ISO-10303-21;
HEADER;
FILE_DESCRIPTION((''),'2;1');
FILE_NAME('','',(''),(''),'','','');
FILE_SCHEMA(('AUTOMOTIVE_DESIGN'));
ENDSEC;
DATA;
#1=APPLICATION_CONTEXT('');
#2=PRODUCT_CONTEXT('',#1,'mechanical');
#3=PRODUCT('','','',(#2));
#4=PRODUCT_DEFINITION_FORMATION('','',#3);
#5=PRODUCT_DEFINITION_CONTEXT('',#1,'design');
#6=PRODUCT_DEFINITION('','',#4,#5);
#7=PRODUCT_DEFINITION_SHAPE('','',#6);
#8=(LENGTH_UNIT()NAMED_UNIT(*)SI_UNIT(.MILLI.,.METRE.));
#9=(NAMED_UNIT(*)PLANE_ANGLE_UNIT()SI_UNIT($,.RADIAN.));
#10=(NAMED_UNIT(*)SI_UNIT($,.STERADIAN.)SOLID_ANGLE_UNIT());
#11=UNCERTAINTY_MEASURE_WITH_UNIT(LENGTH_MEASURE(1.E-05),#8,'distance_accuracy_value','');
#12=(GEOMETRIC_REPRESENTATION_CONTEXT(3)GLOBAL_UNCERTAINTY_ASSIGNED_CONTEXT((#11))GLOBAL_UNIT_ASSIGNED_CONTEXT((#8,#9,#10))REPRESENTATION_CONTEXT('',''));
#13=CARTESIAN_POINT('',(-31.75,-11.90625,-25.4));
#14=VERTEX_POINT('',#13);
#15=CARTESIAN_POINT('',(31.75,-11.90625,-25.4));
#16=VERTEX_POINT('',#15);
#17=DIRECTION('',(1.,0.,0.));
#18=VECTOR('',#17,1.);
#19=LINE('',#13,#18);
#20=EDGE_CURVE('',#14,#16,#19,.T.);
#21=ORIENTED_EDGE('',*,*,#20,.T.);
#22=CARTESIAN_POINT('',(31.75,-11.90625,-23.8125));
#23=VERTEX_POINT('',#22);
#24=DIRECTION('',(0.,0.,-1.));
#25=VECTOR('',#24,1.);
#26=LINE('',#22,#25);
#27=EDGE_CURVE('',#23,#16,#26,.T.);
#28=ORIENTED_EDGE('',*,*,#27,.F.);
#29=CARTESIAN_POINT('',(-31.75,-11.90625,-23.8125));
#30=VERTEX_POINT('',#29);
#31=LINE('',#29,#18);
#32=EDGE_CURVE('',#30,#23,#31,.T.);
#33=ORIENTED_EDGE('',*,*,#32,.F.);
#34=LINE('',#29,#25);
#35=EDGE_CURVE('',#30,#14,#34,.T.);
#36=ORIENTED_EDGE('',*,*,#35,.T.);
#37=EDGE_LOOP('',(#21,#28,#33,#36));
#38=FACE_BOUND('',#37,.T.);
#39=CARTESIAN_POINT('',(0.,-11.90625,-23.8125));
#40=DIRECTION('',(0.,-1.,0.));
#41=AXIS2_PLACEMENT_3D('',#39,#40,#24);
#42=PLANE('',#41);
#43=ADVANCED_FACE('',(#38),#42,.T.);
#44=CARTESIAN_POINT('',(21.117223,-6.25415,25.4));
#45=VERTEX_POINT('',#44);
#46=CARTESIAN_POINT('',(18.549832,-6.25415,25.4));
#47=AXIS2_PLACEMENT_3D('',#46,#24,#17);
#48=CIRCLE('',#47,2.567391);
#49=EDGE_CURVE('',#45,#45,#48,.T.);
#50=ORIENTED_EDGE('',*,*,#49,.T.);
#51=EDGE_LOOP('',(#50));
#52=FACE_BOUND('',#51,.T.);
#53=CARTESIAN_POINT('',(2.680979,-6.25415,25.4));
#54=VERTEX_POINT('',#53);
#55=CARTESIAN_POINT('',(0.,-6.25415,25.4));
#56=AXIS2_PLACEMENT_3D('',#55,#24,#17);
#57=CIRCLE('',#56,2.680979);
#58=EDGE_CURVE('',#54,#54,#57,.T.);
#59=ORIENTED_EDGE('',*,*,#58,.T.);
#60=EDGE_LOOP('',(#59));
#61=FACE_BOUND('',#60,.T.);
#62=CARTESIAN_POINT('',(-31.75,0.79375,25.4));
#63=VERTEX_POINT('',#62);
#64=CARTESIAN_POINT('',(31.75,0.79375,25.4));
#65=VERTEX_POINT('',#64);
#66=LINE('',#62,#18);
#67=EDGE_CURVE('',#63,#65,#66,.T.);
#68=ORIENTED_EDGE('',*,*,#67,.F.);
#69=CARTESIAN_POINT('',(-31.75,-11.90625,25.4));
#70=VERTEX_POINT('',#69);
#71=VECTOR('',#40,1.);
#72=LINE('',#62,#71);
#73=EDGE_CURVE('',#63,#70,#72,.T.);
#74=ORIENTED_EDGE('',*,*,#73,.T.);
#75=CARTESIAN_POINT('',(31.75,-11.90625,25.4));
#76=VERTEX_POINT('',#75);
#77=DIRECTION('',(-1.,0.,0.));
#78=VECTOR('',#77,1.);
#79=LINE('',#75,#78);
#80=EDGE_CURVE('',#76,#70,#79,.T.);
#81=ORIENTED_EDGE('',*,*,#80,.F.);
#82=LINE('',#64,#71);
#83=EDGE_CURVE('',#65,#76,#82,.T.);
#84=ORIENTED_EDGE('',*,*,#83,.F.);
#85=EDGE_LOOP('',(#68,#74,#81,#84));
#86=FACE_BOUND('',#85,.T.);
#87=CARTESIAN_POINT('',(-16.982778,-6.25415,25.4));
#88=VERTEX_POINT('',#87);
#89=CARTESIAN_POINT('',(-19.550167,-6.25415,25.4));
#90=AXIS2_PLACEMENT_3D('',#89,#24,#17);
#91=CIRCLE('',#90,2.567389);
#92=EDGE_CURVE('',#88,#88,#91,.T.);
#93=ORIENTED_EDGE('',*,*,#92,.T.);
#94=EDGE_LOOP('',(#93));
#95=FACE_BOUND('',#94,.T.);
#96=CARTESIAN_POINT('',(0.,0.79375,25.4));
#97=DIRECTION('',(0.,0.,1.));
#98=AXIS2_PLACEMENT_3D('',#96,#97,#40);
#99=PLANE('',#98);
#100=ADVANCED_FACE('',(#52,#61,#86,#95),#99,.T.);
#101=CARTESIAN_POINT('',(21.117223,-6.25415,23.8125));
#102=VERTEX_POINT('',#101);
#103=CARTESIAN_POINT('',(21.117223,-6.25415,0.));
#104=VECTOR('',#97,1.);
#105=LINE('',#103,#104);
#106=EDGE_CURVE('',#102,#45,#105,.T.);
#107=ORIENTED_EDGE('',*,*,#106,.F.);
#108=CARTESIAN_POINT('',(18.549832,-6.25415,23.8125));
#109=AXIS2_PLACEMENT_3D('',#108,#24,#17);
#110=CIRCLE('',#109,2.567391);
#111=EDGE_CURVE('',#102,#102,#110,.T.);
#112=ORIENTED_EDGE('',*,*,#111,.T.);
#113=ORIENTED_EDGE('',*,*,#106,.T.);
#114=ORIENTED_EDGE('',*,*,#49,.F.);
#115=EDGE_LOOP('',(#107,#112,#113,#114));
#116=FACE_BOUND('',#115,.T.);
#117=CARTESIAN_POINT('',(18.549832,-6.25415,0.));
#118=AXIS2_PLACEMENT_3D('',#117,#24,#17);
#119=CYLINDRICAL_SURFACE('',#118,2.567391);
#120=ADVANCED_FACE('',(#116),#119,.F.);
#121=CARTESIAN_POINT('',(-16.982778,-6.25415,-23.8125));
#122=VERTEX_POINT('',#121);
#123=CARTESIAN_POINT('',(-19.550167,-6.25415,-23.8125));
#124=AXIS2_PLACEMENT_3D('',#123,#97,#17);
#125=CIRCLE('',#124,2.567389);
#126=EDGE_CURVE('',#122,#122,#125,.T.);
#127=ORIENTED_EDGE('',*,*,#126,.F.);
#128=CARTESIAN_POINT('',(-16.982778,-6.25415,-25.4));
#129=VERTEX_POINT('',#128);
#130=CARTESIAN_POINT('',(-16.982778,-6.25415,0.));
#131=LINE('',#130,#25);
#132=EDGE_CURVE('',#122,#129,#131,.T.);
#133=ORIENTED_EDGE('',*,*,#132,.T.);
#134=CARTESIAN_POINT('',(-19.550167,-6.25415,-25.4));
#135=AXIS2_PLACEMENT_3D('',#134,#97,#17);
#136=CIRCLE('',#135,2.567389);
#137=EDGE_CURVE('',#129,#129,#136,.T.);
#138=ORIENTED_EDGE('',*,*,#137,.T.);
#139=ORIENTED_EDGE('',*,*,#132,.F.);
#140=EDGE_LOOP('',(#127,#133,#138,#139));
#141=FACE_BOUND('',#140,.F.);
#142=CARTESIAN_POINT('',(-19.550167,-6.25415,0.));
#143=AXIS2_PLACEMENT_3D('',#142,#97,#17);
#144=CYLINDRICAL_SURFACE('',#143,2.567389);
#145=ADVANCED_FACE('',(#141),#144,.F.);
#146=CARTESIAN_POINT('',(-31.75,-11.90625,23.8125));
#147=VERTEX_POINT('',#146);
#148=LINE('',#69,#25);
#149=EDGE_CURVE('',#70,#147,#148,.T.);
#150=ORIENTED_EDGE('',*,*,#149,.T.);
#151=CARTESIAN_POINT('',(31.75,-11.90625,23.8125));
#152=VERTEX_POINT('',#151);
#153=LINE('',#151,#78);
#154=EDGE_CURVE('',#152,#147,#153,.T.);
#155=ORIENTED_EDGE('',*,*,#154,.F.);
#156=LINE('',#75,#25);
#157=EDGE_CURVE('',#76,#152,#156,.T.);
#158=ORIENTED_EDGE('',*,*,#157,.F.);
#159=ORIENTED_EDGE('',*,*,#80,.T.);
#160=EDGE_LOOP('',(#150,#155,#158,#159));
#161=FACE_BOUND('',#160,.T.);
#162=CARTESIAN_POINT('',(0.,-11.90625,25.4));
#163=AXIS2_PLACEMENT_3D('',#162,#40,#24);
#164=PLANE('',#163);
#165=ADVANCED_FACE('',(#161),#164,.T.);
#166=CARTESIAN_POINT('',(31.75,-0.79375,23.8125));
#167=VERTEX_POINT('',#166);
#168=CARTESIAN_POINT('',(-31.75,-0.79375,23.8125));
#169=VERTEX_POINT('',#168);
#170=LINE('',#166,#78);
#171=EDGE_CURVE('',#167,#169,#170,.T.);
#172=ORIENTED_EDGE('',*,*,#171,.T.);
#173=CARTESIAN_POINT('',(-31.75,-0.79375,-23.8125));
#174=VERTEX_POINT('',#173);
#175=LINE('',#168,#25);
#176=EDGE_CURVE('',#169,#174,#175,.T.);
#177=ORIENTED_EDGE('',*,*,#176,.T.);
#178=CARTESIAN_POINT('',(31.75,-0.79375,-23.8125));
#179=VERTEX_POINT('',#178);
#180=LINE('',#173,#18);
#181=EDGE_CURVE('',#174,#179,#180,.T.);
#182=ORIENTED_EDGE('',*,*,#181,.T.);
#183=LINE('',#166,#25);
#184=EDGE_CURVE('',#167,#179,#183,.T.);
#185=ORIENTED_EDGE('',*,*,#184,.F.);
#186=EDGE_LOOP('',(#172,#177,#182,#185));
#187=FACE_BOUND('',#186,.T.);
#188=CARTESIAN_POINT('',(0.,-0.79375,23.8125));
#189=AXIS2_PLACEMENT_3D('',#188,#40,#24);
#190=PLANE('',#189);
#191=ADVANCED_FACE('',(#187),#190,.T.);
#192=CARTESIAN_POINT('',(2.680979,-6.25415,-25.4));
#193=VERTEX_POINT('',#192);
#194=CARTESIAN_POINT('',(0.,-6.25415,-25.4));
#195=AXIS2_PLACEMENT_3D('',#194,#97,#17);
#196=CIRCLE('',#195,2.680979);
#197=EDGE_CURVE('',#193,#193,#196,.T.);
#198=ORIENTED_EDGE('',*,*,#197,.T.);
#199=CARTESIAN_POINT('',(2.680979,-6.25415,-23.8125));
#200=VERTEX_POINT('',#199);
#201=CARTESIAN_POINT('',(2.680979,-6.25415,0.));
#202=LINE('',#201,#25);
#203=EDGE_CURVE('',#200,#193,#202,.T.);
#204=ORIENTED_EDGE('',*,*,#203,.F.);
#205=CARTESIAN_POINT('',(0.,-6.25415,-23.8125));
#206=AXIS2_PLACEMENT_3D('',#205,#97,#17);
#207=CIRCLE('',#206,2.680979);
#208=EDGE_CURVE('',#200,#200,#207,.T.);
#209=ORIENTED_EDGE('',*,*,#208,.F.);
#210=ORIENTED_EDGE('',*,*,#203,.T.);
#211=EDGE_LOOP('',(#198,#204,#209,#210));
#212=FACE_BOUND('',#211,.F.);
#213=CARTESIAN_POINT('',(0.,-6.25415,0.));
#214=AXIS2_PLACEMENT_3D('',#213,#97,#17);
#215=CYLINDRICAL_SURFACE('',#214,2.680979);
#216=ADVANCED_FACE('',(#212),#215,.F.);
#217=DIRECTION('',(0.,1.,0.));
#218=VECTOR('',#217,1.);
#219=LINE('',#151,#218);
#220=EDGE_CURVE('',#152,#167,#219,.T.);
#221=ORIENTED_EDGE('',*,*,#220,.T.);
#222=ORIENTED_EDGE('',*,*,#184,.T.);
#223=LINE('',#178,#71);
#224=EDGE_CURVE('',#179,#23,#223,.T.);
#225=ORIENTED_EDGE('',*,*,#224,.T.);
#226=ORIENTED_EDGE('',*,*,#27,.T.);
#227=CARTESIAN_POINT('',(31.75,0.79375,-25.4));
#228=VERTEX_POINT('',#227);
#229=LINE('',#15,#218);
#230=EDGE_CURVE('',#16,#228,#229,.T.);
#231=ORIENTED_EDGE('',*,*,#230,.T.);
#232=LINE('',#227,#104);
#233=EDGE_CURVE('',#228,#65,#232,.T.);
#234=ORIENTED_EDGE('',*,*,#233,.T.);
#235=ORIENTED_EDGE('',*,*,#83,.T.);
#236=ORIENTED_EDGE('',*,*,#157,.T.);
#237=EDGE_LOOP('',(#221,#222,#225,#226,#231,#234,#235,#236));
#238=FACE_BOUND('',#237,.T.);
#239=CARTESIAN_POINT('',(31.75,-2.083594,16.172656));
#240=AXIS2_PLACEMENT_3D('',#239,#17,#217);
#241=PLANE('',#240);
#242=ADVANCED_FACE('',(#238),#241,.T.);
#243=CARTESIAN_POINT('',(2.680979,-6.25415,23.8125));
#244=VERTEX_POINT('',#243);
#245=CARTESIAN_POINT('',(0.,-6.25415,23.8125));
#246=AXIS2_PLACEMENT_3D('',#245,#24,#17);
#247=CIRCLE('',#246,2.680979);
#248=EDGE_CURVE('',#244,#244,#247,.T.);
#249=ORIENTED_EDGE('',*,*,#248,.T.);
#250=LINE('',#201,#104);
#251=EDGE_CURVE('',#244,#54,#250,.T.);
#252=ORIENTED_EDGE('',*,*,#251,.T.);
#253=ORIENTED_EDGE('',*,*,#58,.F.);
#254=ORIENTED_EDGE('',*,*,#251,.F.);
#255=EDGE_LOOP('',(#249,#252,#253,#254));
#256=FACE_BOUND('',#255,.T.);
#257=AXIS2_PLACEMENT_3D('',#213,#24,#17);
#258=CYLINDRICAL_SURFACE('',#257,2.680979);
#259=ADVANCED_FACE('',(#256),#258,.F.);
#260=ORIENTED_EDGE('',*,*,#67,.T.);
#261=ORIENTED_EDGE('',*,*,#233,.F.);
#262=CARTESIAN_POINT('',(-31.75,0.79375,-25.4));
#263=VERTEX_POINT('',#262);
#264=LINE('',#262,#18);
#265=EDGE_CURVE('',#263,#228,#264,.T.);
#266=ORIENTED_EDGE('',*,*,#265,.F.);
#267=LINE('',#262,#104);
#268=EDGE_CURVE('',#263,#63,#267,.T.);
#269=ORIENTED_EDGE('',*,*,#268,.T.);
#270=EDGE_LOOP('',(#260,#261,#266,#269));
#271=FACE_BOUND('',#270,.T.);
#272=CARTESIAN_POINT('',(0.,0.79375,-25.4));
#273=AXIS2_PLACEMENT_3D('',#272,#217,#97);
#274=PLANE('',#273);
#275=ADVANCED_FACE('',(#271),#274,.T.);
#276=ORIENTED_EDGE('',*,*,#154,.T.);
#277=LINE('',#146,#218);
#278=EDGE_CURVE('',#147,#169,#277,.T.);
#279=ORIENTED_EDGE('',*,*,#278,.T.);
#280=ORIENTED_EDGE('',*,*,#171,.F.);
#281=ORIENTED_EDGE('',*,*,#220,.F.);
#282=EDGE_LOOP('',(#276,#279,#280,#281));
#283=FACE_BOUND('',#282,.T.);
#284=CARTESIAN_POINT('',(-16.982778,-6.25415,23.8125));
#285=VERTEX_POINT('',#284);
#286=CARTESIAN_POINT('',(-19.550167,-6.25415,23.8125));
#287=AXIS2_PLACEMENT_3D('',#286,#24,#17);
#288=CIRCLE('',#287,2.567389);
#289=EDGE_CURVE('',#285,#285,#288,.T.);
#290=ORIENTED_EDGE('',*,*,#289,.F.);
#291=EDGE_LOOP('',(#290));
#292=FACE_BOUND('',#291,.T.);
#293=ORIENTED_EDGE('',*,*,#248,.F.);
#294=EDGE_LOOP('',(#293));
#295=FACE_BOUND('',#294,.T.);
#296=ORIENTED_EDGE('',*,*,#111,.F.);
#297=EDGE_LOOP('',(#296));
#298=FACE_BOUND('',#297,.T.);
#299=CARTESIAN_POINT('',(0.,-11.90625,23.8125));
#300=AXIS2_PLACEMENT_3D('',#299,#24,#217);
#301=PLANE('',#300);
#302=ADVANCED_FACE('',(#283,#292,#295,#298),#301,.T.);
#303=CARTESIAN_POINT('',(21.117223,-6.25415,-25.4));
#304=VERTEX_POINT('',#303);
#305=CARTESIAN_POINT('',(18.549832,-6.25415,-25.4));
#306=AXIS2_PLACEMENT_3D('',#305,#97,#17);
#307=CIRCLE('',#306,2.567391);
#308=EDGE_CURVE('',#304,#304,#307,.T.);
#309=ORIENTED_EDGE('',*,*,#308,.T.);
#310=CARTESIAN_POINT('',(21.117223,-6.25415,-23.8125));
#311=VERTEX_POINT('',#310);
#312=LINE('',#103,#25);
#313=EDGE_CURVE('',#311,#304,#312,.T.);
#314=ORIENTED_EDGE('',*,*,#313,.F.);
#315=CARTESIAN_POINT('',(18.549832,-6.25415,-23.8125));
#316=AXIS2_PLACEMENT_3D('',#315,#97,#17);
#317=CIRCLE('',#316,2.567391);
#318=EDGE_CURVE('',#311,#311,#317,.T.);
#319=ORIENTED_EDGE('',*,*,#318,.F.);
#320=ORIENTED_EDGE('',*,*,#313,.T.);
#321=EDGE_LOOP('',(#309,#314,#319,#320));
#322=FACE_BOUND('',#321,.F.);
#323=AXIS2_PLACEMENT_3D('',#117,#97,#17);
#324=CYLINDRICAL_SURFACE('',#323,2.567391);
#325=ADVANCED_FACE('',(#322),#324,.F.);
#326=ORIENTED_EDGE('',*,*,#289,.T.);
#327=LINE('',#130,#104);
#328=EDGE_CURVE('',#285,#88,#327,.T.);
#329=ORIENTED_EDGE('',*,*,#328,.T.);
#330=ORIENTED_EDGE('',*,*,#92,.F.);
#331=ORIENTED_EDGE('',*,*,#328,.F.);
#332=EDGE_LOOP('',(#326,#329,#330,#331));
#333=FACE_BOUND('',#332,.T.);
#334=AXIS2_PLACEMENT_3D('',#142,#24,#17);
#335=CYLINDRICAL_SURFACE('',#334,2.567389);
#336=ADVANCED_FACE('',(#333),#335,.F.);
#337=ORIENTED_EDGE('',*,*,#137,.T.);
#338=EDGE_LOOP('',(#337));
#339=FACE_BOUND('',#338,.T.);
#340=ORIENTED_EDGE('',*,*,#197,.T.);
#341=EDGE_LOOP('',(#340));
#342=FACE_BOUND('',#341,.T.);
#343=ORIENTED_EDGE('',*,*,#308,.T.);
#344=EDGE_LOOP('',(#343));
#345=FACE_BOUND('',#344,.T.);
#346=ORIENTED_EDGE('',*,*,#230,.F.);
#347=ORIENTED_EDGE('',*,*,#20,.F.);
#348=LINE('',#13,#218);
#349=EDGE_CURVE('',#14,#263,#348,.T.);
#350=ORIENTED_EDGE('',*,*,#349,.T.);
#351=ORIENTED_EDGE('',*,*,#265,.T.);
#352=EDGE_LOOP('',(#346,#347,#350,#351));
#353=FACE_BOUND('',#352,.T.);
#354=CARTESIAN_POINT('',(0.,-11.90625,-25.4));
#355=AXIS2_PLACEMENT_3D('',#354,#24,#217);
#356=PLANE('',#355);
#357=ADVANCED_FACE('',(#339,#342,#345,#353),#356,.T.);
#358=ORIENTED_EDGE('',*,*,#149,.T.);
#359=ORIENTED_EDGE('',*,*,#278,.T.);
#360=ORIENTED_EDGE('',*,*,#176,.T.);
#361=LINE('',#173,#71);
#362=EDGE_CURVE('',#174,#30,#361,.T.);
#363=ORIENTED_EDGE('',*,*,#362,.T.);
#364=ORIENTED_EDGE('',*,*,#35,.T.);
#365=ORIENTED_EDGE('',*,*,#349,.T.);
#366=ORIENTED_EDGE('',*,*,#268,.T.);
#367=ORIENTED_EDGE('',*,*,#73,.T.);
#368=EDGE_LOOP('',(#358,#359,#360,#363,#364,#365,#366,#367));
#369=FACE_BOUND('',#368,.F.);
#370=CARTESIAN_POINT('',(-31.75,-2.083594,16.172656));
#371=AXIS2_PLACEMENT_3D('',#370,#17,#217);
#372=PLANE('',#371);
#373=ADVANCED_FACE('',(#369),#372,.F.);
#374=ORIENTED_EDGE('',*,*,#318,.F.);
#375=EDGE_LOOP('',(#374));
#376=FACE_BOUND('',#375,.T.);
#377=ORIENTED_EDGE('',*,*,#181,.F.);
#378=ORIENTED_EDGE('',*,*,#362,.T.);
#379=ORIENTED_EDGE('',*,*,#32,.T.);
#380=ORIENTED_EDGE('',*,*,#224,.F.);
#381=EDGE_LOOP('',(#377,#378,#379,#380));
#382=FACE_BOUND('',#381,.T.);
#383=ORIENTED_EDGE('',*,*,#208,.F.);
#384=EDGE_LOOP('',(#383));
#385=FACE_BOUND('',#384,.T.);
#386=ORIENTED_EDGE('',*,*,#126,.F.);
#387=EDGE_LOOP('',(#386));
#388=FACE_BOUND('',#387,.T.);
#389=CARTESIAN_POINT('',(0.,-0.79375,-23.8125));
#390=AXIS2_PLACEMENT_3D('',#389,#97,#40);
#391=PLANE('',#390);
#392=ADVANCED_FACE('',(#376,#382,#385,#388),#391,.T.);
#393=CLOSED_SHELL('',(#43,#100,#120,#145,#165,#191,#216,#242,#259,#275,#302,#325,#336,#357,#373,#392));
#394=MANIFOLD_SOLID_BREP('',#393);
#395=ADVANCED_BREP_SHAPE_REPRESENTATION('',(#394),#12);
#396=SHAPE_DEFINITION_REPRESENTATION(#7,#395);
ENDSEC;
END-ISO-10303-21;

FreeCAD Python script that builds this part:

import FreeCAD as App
import Part
import Sketcher
from FreeCAD import Vector
Q = App.Units.Quantity

doc = App.newDocument("Part")
body = doc.addObject("PartDesign::Body", "Body")

# Sketch on YZ plane
sketch1 = doc.addObject("Sketcher::SketchObject", "Sketch")
body.addObject(sketch1)
sketch1.AttachmentSupport = (doc.YZ_Plane, [""])
sketch1.MapMode = "FlatFace"
sketch1.addGeometry(Part.LineSegment(Vector(-0.8, 23.8, 0), Vector(-0.8, -23.8, 0)), False)
sketch1.addGeometry(Part.LineSegment(Vector(-0.8, -23.8, 0), Vector(-11.9, -23.8, 0)), False)
sketch1.addGeometry(Part.LineSegment(Vector(-11.9, -23.8, 0), Vector(-11.9, -25.4, 0)), False)
sketch1.addGeometry(Part.LineSegment(Vector(-11.9, -25.4, 0), Vector(0.8, -25.4, 0)), False)
sketch1.addGeometry(Part.LineSegment(Vector(0.8, -25.4, 0), Vector(0.8, 25.4, 0)), False)
sketch1.addGeometry(Part.LineSegment(Vector(0.8, 25.4, 0), Vector(-11.9, 25.4, 0)), False)
sketch1.addGeometry(Part.LineSegment(Vector(-11.9, 25.4, 0), Vector(-11.9, 23.8, 0)), False)
sketch1.addGeometry(Part.LineSegment(Vector(-11.9, 23.8, 0), Vector(-0.8, 23.8, 0)), False)
sketch1.addConstraint(Sketcher.Constraint("Coincident", 0, 2, 1, 1))
sketch1.addConstraint(Sketcher.Constraint("Coincident", 1, 2, 2, 1))
sketch1.addConstraint(Sketcher.Constraint("Coincident", 2, 2, 3, 1))
sketch1.addConstraint(Sketcher.Constraint("Coincident", 3, 2, 4, 1))
sketch1.addConstraint(Sketcher.Constraint("Coincident", 4, 2, 5, 1))
sketch1.addConstraint(Sketcher.Constraint("Coincident", 5, 2, 6, 1))
sketch1.addConstraint(Sketcher.Constraint("Coincident", 6, 2, 7, 1))
sketch1.addConstraint(Sketcher.Constraint("Coincident", 7, 2, 0, 1))
sketch1.addConstraint(Sketcher.Constraint("Vertical", 0))
sketch1.addConstraint(Sketcher.Constraint("Horizontal", 1))
sketch1.addConstraint(Sketcher.Constraint("Vertical", 2))
sketch1.addConstraint(Sketcher.Constraint("Horizontal", 3))
sketch1.addConstraint(Sketcher.Constraint("Vertical", 4))
sketch1.addConstraint(Sketcher.Constraint("Horizontal", 5))
sketch1.addConstraint(Sketcher.Constraint("Vertical", 6))
sketch1.addConstraint(Sketcher.Constraint("Horizontal", 7))
sketch1.addConstraint(Sketcher.Constraint("Symmetric", 2, 2, 5, 2, -1))
sketch1.addConstraint(Sketcher.Constraint("Equal", 2, 6))
sketch1.addConstraint(Sketcher.Constraint("DistanceY", 4, 1, 4, 2, Q("2 in")))
sketch1.addConstraint(Sketcher.Constraint("DistanceX", 3, 1, 3, 2, Q("0.5 in")))
sketch1.addConstraint(Sketcher.Constraint("DistanceX", 1, 2, 1, 1, Q("0.4375 in")))
sketch1.addConstraint(Sketcher.Constraint("DistanceY", 0, 2, 0, 1, Q("1.875 in")))
sketch1.addConstraint(Sketcher.Constraint("DistanceX", 0, 2, -1, 1, Q("0.03125 in")))
pad1 = doc.addObject("PartDesign::Pad", "Pad")
body.addObject(pad1)
pad1.Profile = sketch1
pad1.Length = Q("2.5 in")
pad1.Midplane = True

# Sketch on XY plane
sketch2 = doc.addObject("Sketcher::SketchObject", "Sketch001")
body.addObject(sketch2)
sketch2.AttachmentSupport = (doc.XY_Plane, [""])
sketch2.MapMode = "FlatFace"
sketch2.addGeometry(Part.Circle(Vector(0, -6.3, 0), Vector(0, 0, 1), 2.7), False)
sketch2.addGeometry(Part.Circle(Vector(18.5, -6.3, 0), Vector(0, 0, 1), 2.6), False)
sketch2.addGeometry(Part.Circle(Vector(-19.6, -6.3, 0), Vector(0, 0, 1), 2.6), False)
sketch2.addConstraint(Sketcher.Constraint("Equal", 1, 2))
sketch2.addConstraint(Sketcher.Constraint("PointOnObject", 0, 3, -2))
sketch2.addConstraint(Sketcher.Constraint("Horizontal", 0, 3, 1, 3))
sketch2.addConstraint(Sketcher.Constraint("Horizontal", 1, 3, 2, 3))
sketch2.addConstraint(Sketcher.Constraint("DistanceX", 2, 3, 1, 3, Q("1.4999999 in")))
sketch2.addConstraint(Sketcher.Constraint("Diameter", 1, 5.134782))
sketch2.addConstraint(Sketcher.Constraint("Diameter", 0, 5.361958))
sketch2.addConstraint(Sketcher.Constraint("DistanceY", 0, 3, -1, 1, 6.25415))
sketch2.addConstraint(Sketcher.Constraint("DistanceX", -1, 1, 1, 3, 18.549832))
pocket1 = doc.addObject("PartDesign::Pocket", "Pocket")
body.addObject(pocket1)
pocket1.Profile = sketch2
pocket1.Type = "ThroughAll"
pocket1.Midplane = True

doc.recompute()
